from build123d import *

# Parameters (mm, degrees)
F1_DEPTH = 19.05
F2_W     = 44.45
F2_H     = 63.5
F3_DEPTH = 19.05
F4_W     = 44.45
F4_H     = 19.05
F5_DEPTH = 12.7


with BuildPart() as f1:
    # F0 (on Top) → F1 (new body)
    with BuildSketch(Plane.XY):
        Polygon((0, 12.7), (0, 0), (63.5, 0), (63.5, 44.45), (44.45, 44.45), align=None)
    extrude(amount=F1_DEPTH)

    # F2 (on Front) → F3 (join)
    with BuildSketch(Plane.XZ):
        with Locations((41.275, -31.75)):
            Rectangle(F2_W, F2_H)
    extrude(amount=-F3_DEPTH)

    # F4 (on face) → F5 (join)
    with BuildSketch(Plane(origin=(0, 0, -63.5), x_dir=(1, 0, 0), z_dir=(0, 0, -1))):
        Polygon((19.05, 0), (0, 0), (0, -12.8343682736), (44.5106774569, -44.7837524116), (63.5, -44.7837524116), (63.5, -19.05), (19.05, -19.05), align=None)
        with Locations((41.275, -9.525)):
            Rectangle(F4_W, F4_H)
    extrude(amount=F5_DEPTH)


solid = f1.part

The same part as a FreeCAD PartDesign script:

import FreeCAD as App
import Part
import Sketcher
from FreeCAD import Vector
Q = App.Units.Quantity

doc = App.newDocument("Part")
params = doc.addObject("Spreadsheet::Sheet", "Params")
for row, (alias, value) in enumerate([
    ("sketch1_width", "2.5 in"),
    ("sketch1_height", "0.5 in"),
    ("sketch1_width2", "0.75 in"),
    ("sketch1_height2", "1.75 in"),
    ("pad1_length", "0.75 in"),
    ("sketch2_height", "2.5 in"),
    ("sketch2_width", "1.75 in"),
    ("pad2_length", "0.75 in"),
    ("sketch3_width", "2.5 in"),
    ("pad3_length", "0.5 in"),
], start=1):
    params.set(f"A{row}", alias)
    params.set(f"B{row}", "=" + value)
    params.setAlias(f"B{row}", alias)

body = doc.addObject("PartDesign::Body", "Body")

sketch1 = body.newObject("Sketcher::SketchObject", "Sketch")
sketch1.AttachmentSupport = (doc.getObject("XY_Plane"), [""])
sketch1.MapMode = "FlatFace"
sketch1.addGeometry(Part.LineSegment(Vector(0, 13, 0), Vector(0, 0, 0)), False)
sketch1.addGeometry(Part.LineSegment(Vector(0, 0, 0), Vector(64, 0, 0)), False)
sketch1.addGeometry(Part.LineSegment(Vector(64, 0, 0), Vector(64, 44, 0)), False)
sketch1.addGeometry(Part.LineSegment(Vector(64, 44, 0), Vector(44, 44, 0)), False)
sketch1.addGeometry(Part.LineSegment(Vector(44, 44, 0), Vector(0, 13, 0)), False)
sketch1.addConstraint(Sketcher.Constraint("Coincident", 0, 2, 1, 1))
sketch1.addConstraint(Sketcher.Constraint("Coincident", 1, 2, 2, 1))
sketch1.addConstraint(Sketcher.Constraint("Coincident", 2, 2, 3, 1))
sketch1.addConstraint(Sketcher.Constraint("Coincident", 3, 2, 4, 1))
sketch1.addConstraint(Sketcher.Constraint("Coincident", 4, 2, 0, 1))
sketch1.addConstraint(Sketcher.Constraint("Vertical", 0))
sketch1.addConstraint(Sketcher.Constraint("Horizontal", 1))
sketch1.addConstraint(Sketcher.Constraint("Vertical", 2))
sketch1.addConstraint(Sketcher.Constraint("Horizontal", 3))
sketch1.addConstraint(Sketcher.Constraint("Coincident", 0, 2, -1, 1))
sketch1.addConstraint(Sketcher.Constraint("DistanceX", 1, 1, 1, 2, Q("2.5 in")))
sketch1.addConstraint(Sketcher.Constraint("DistanceY", 0, 2, 0, 1, Q("0.5 in")))
sketch1.addConstraint(Sketcher.Constraint("DistanceX", 3, 2, 3, 1, Q("0.75 in")))
sketch1.addConstraint(Sketcher.Constraint("DistanceY", 2, 1, 2, 2, Q("1.75 in")))
sketch1.setExpression("Constraints[10]", "Params.sketch1_width")
sketch1.setExpression("Constraints[11]", "Params.sketch1_height")
sketch1.setExpression("Constraints[12]", "Params.sketch1_width2")
sketch1.setExpression("Constraints[13]", "Params.sketch1_height2")
pad1 = body.newObject("PartDesign::Pad", "Pad")
pad1.Profile = sketch1
pad1.setExpression("Length", "Params.pad1_length")

sketch2 = body.newObject("Sketcher::SketchObject", "Sketch001")
sketch2.AttachmentSupport = (doc.getObject("XZ_Plane"), [""])
sketch2.MapMode = "FlatFace"
sketch2.addGeometry(Part.LineSegment(Vector(19, 0, 0), Vector(19, -64, 0)), False)
sketch2.addGeometry(Part.LineSegment(Vector(19, -64, 0), Vector(64, -64, 0)), False)
sketch2.addGeometry(Part.LineSegment(Vector(64, -64, 0), Vector(64, 0, 0)), False)
sketch2.addGeometry(Part.LineSegment(Vector(64, 0, 0), Vector(19, 0, 0)), False)
sketch2.addConstraint(Sketcher.Constraint("Coincident", 0, 2, 1, 1))
sketch2.addConstraint(Sketcher.Constraint("Coincident", 1, 2, 2, 1))
sketch2.addConstraint(Sketcher.Constraint("Coincident", 2, 2, 3, 1))
sketch2.addConstraint(Sketcher.Constraint("Coincident", 3, 2, 0, 1))
sketch2.addConstraint(Sketcher.Constraint("Vertical", 0))
sketch2.addConstraint(Sketcher.Constraint("Horizontal", 1))
sketch2.addConstraint(Sketcher.Constraint("Vertical", 2))
sketch2.addConstraint(Sketcher.Constraint("Horizontal", 3))
sketch2.addConstraint(Sketcher.Constraint("PointOnObject", 2, 2, -1))
sketch2.addConstraint(Sketcher.Constraint("DistanceY", 0, 2, 0, 1, Q("2.5 in")))
sketch2.addConstraint(Sketcher.Constraint("DistanceX", 1, 1, 1, 2, Q("1.75 in")))
sketch2.addConstraint(Sketcher.Constraint("DistanceX", -1, 1, 1, 2, Q("2.5 in")))
sketch2.setExpression("Constraints[9]", "Params.sketch2_height")
sketch2.setExpression("Constraints[10]", "Params.sketch2_width")
pad2 = body.newObject("PartDesign::Pad", "Pad001")
pad2.Profile = sketch2
pad2.setExpression("Length", "Params.pad2_length")
pad2.Reversed = True

sketch3 = body.newObject("Sketcher::SketchObject", "Sketch002")
sketch3.AttachmentSupport = (doc.getObject("XY_Plane"), [""])
sketch3.MapMode = "FlatFace"
sketch3.AttachmentOffset = App.Placement(Vector(0, 0, -2.5 * 25.4), App.Rotation())
sketch3.addGeometry(Part.LineSegment(Vector(0, 0, 0), Vector(0, 13, 0)), False)
sketch3.addGeometry(Part.LineSegment(Vector(0, 13, 0), Vector(45, 45, 0)), False)
sketch3.addGeometry(Part.LineSegment(Vector(45, 45, 0), Vector(64, 45, 0)), False)
sketch3.addGeometry(Part.LineSegment(Vector(64, 45, 0), Vector(64, 0, 0)), False)
sketch3.addGeometry(Part.LineSegment(Vector(64, 0, 0), Vector(0, 0, 0)), False)
sketch3.addConstraint(Sketcher.Constraint("Coincident", 0, 2, 1, 1))
sketch3.addConstraint(Sketcher.Constraint("Coincident", 1, 2, 2, 1))
sketch3.addConstraint(Sketcher.Constraint("Coincident", 2, 2, 3, 1))
sketch3.addConstraint(Sketcher.Constraint("Coincident", 3, 2, 4, 1))
sketch3.addConstraint(Sketcher.Constraint("Coincident", 4, 2, 0, 1))
sketch3.addConstraint(Sketcher.Constraint("Vertical", 0))
sketch3.addConstraint(Sketcher.Constraint("Horizontal", 2))
sketch3.addConstraint(Sketcher.Constraint("Vertical", 3))
sketch3.addConstraint(Sketcher.Constraint("Horizontal", 4))
sketch3.addConstraint(Sketcher.Constraint("Coincident", 4, 2, -1, 1))
sketch3.addConstraint(Sketcher.Constraint("DistanceX", 4, 2, 4, 1, Q("2.5 in")))
sketch3.addConstraint(Sketcher.Constraint("DistanceY", 0, 1, 0, 2, Q("12.834368 mm")))
sketch3.addConstraint(Sketcher.Constraint("DistanceX", 2, 1, 2, 2, Q("18.989323 mm")))
sketch3.addConstraint(Sketcher.Constraint("DistanceY", 3, 2, 3, 1, Q("44.783752 mm")))
sketch3.setExpression("Constraints[10]", "Params.sketch3_width")
pad3 = body.newObject("PartDesign::Pad", "Pad002")
pad3.Profile = sketch3
pad3.setExpression("Length", "Params.pad3_length")
pad3.Reversed = True

doc.recompute()
